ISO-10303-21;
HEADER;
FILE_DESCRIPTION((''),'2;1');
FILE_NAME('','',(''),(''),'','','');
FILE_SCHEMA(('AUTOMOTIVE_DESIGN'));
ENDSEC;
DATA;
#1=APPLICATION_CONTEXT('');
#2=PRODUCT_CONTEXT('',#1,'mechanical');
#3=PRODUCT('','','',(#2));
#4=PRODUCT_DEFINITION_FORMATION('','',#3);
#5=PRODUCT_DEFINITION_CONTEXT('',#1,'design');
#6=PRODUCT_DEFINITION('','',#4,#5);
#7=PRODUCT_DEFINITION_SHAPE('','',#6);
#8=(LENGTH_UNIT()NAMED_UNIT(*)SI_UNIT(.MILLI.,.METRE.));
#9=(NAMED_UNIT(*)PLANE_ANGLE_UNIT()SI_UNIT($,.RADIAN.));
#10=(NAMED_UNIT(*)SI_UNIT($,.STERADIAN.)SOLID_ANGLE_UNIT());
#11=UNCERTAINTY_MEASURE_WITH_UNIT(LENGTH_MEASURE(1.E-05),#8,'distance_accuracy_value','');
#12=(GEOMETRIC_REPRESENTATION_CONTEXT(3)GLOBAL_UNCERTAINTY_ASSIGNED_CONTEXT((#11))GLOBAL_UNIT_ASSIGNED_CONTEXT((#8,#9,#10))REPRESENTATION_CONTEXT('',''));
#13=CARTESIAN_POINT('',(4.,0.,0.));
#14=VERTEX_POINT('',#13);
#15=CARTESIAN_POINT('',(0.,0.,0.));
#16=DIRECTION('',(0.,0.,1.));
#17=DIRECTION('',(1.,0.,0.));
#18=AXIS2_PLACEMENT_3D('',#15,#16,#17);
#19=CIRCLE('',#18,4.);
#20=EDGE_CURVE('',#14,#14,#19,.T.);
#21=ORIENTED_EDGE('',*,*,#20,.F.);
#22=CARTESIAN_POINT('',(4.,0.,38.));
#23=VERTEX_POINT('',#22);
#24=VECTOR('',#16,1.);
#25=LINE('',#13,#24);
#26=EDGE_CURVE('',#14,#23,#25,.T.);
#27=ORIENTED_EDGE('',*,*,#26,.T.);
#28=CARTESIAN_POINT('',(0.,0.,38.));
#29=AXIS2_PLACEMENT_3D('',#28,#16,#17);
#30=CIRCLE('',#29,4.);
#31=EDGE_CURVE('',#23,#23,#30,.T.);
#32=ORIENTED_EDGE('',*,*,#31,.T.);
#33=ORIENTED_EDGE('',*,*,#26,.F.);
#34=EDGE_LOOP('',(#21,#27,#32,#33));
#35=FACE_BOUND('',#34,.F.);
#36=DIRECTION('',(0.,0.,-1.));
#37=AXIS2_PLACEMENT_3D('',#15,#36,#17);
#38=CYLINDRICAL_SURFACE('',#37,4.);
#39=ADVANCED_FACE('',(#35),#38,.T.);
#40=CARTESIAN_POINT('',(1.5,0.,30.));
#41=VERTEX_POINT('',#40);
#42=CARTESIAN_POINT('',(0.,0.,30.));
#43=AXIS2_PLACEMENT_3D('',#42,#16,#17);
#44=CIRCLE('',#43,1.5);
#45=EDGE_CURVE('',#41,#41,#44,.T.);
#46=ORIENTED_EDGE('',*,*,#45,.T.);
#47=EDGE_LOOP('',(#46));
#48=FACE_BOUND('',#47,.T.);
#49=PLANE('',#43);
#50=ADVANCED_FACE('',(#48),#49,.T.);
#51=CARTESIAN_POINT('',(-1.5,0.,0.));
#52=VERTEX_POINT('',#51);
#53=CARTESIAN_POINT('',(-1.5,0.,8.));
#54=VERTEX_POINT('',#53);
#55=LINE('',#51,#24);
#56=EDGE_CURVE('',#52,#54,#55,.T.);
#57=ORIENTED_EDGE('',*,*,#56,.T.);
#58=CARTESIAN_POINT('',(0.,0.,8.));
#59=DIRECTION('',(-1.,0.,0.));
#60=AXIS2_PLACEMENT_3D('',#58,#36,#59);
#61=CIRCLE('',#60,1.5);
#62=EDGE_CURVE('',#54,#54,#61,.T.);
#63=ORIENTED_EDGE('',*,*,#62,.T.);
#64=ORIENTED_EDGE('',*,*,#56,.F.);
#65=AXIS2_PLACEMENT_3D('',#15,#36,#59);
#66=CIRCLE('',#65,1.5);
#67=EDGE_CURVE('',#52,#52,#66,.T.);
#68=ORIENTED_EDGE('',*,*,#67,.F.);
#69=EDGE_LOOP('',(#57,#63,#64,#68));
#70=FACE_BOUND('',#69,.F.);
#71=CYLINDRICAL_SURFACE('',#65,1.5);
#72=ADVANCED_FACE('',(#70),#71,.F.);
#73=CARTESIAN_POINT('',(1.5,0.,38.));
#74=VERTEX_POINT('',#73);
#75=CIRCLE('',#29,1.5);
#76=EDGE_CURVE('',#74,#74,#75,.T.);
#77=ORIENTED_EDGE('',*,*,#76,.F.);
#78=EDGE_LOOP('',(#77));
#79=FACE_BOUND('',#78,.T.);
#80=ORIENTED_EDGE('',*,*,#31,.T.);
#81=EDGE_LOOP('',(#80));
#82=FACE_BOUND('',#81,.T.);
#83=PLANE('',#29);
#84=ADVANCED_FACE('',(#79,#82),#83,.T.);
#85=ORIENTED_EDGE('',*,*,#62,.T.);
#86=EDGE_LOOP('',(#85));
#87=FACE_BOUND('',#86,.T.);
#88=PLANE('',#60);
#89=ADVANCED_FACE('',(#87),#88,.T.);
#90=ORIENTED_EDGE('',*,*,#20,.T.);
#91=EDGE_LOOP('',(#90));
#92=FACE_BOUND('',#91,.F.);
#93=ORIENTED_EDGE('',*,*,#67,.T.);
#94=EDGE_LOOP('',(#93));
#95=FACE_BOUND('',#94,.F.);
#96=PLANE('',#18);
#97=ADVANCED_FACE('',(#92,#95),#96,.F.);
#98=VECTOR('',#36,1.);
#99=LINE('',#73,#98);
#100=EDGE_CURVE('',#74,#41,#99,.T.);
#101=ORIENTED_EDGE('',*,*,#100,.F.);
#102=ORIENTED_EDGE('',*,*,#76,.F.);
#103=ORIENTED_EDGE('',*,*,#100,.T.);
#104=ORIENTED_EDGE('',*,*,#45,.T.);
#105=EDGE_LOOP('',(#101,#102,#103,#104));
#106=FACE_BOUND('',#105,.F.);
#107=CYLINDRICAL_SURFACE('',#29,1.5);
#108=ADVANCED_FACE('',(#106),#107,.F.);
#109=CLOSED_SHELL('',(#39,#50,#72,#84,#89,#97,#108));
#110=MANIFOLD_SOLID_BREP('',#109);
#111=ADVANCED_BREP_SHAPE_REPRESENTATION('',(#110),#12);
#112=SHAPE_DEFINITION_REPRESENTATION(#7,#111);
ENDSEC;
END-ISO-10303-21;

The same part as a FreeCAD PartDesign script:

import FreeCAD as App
import Part
import Sketcher
from FreeCAD import Vector

doc = App.newDocument("Part")
body = doc.addObject("PartDesign::Body", "Body")

sketch1 = body.newObject("Sketcher::SketchObject", "Sketch")
sketch1.AttachmentSupport = (doc.getObject("XY_Plane"), [""])
sketch1.MapMode = "FlatFace"
sketch1.addGeometry(Part.Circle(Vector(0, 0, 0), Vector(0, 0, 1), 4), False)
sketch1.addConstraint([
    Sketcher.Constraint("Coincident", 0, 3, -1, 1),
    Sketcher.Constraint("Diameter", 0, 8.0),
])
pad1 = body.newObject("PartDesign::Pad", "Pad")
pad1.Profile = sketch1
pad1.Length = 38

sketch2 = body.newObject("Sketcher::SketchObject", "Sketch001")
sketch2.AttachmentSupport = (doc.getObject("XY_Plane"), [""])
sketch2.MapMode = "FlatFace"
sketch2.AttachmentOffset = App.Placement(Vector(0, 0, 38), App.Rotation())
sketch2.addGeometry(Part.Circle(Vector(0, 0, 0), Vector(0, 0, 1), 1.5), False)
sketch2.addConstraint([
    Sketcher.Constraint("Coincident", 0, 3, -1, 1),
    Sketcher.Constraint("Diameter", 0, 3.0),
])
pocket1 = body.newObject("PartDesign::Pocket", "Pocket")
pocket1.Profile = sketch2
pocket1.Length = 8

sketch3 = body.newObject("Sketcher::SketchObject", "Sketch002")
sketch3.AttachmentSupport = (doc.getObject("XY_Plane"), [""])
sketch3.MapMode = "FlatFace"
sketch3.addGeometry(Part.Circle(Vector(0, 0, 0), Vector(0, 0, 1), 1.5), False)
sketch3.addConstraint([
    Sketcher.Constraint("Coincident", 0, 3, -1, 1),
    Sketcher.Constraint("Diameter", 0, 3.0),
])
pocket2 = body.newObject("PartDesign::Pocket", "Pocket001")
pocket2.Profile = sketch3
pocket2.Length = 8
pocket2.Reversed = True

doc.recompute()
